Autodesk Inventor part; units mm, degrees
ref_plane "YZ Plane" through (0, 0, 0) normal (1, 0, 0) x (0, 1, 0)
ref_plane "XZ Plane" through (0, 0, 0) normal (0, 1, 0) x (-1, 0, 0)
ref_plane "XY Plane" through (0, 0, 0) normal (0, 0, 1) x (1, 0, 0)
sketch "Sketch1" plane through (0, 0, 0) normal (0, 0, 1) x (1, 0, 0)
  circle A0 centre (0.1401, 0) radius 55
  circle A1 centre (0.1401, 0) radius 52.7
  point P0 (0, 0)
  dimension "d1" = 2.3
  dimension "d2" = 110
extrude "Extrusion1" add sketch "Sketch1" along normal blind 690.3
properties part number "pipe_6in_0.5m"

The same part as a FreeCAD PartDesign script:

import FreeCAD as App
import Part
import Sketcher

V = App.Vector
Q = App.Units.Quantity

doc = App.newDocument("Part")
body = doc.addObject("PartDesign::Body", "Body")

# Sketch on XY plane
sketch1 = body.newObject("Sketcher::SketchObject", "Sketch")
sketch1.AttachmentSupport = (doc.getObject("XY_Plane"), [""])
sketch1.MapMode = "FlatFace"
sketch1.addGeometry(Part.Circle(V(0, 0, 0), V(0, 0, 1), 55), False)
sketch1.addGeometry(Part.Circle(V(0, 0, 0), V(0, 0, 1), 53), False)
sketch1.addConstraint(Sketcher.Constraint("Coincident", 1, 3, 0, 3))
sketch1.addConstraint(Sketcher.Constraint("PointOnObject", 0, 3, -1))
sketch1.addConstraint(Sketcher.Constraint("Diameter", 0, Q("110 mm")))
sketch1.addConstraint(Sketcher.Constraint("Diameter", 1, Q("105.4 mm")))
sketch1.addConstraint(Sketcher.Constraint("DistanceX", -1, 1, 0, 3, Q("0.14 mm")))
pad1 = body.newObject("PartDesign::Pad", "Pad")
pad1.Profile = sketch1
pad1.Length = 690.3

doc.recompute()
